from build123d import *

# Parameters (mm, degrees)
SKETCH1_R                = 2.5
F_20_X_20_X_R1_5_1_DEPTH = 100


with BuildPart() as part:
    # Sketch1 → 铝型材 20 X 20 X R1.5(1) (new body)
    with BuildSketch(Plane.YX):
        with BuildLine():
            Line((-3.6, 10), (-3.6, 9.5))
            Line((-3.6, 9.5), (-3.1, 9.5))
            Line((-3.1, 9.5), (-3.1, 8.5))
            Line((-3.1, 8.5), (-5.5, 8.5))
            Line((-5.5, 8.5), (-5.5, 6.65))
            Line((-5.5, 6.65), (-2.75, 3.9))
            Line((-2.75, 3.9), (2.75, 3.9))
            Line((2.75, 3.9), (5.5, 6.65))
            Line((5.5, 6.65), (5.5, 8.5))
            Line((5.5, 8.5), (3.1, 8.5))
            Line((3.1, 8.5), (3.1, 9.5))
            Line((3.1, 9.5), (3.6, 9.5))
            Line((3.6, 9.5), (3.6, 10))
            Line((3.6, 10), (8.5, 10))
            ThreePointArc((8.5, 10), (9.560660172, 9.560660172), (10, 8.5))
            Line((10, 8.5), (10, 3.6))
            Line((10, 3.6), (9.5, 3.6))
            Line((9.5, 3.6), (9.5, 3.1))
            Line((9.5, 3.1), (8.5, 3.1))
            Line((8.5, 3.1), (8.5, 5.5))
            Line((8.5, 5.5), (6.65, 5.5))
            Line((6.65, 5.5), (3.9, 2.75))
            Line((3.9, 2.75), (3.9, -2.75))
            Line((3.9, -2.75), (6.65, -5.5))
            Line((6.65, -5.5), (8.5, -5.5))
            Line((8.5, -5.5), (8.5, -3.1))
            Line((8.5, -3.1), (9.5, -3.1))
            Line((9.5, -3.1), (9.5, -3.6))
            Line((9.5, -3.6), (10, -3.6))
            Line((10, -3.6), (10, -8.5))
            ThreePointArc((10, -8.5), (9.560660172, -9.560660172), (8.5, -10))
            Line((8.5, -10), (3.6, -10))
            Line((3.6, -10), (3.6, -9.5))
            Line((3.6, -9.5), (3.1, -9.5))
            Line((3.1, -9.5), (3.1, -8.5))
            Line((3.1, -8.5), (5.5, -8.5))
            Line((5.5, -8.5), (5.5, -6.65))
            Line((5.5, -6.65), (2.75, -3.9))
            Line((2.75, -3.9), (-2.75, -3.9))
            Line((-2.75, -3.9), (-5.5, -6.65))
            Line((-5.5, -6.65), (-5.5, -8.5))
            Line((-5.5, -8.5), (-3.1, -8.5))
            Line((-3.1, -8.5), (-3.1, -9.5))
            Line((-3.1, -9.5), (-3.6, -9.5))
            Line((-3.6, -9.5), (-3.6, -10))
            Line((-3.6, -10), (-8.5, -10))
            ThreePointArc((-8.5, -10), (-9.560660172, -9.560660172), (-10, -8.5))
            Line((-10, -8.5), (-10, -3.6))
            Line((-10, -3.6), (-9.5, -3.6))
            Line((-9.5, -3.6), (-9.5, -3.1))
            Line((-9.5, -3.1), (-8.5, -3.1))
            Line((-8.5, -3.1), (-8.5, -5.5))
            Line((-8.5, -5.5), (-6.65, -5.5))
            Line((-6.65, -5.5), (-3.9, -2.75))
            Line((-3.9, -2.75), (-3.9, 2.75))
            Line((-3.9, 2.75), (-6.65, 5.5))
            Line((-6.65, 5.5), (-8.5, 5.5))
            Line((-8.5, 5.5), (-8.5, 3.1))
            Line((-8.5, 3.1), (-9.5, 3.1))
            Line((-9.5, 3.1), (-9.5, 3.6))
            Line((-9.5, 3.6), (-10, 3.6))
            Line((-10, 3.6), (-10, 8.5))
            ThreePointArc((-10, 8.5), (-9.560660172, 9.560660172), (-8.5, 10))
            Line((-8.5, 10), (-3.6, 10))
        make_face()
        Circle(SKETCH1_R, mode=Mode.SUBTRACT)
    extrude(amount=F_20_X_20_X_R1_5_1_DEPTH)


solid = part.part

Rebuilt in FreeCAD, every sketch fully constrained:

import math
import FreeCAD as App
import Part
import Sketcher
Q = App.Units.Quantity

doc = App.newDocument("Part")
body = doc.addObject("PartDesign::Body", "Body")

sketch1 = body.newObject("Sketcher::SketchObject", "Sketch")
sketch1.AttachmentSupport = (doc.getObject("XY_Plane"), [""])
sketch1.MapMode = "FlatFace"
sketch1.addGeometry(Part.LineSegment(App.Vector(9.5, -3.6, 0), App.Vector(10, -3.6, 0)), False)
sketch1.addGeometry(Part.LineSegment(App.Vector(10, -3.6, 0), App.Vector(10, -8.5, 0)), False)
sketch1.addGeometry(Part.ArcOfCircle(Part.Circle(App.Vector(8.5, -8.5, 0), App.Vector(0, 0, 1), 1.5), math.radians(-90), math.radians(0)), False)
sketch1.addGeometry(Part.LineSegment(App.Vector(8.5, -10, 0), App.Vector(3.6, -10, 0)), False)
sketch1.addGeometry(Part.LineSegment(App.Vector(3.6, -10, 0), App.Vector(3.6, -9.5, 0)), False)
sketch1.addGeometry(Part.LineSegment(App.Vector(3.6, -9.5, 0), App.Vector(3.1, -9.5, 0)), False)
sketch1.addGeometry(Part.LineSegment(App.Vector(3.1, -9.5, 0), App.Vector(3.1, -8.5, 0)), False)
sketch1.addGeometry(Part.LineSegment(App.Vector(3.1, -8.5, 0), App.Vector(5.5, -8.5, 0)), False)
sketch1.addGeometry(Part.LineSegment(App.Vector(5.5, -8.5, 0), App.Vector(5.5, -6.7, 0)), False)
sketch1.addGeometry(Part.LineSegment(App.Vector(5.5, -6.7, 0), App.Vector(2.8, -3.9, 0)), False)
sketch1.addGeometry(Part.LineSegment(App.Vector(2.8, -3.9, 0), App.Vector(-2.8, -3.9, 0)), False)
sketch1.addGeometry(Part.LineSegment(App.Vector(-2.8, -3.9, 0), App.Vector(-5.5, -6.7, 0)), False)
sketch1.addGeometry(Part.LineSegment(App.Vector(-5.5, -6.7, 0), App.Vector(-5.5, -8.5, 0)), False)
sketch1.addGeometry(Part.LineSegment(App.Vector(-5.5, -8.5, 0), App.Vector(-3.1, -8.5, 0)), False)
sketch1.addGeometry(Part.LineSegment(App.Vector(-3.1, -8.5, 0), App.Vector(-3.1, -9.5, 0)), False)
sketch1.addGeometry(Part.LineSegment(App.Vector(-3.1, -9.5, 0), App.Vector(-3.6, -9.5, 0)), False)
sketch1.addGeometry(Part.LineSegment(App.Vector(-3.6, -9.5, 0), App.Vector(-3.6, -10, 0)), False)
sketch1.addGeometry(Part.LineSegment(App.Vector(-3.6, -10, 0), App.Vector(-8.5, -10, 0)), False)
sketch1.addGeometry(Part.ArcOfCircle(Part.Circle(App.Vector(-8.5, -8.5, 0), App.Vector(0, 0, 1), 1.5), math.radians(180), math.radians(270)), False)
sketch1.addGeometry(Part.LineSegment(App.Vector(-10, -8.5, 0), App.Vector(-10, -3.6, 0)), False)
sketch1.addGeometry(Part.LineSegment(App.Vector(-10, -3.6, 0), App.Vector(-9.5, -3.6, 0)), False)
sketch1.addGeometry(Part.LineSegment(App.Vector(-9.5, -3.6, 0), App.Vector(-9.5, -3.1, 0)), False)
sketch1.addGeometry(Part.LineSegment(App.Vector(-9.5, -3.1, 0), App.Vector(-8.5, -3.1, 0)), False)
sketch1.addGeometry(Part.LineSegment(App.Vector(-8.5, -3.1, 0), App.Vector(-8.5, -5.5, 0)), False)
sketch1.addGeometry(Part.LineSegment(App.Vector(-8.5, -5.5, 0), App.Vector(-6.7, -5.5, 0)), False)
sketch1.addGeometry(Part.LineSegment(App.Vector(-6.7, -5.5, 0), App.Vector(-3.9, -2.8, 0)), False)
sketch1.addGeometry(Part.LineSegment(App.Vector(-3.9, -2.8, 0), App.Vector(-3.9, 2.8, 0)), False)
sketch1.addGeometry(Part.LineSegment(App.Vector(-3.9, 2.8, 0), App.Vector(-6.7, 5.5, 0)), False)
sketch1.addGeometry(Part.LineSegment(App.Vector(-6.7, 5.5, 0), App.Vector(-8.5, 5.5, 0)), False)
sketch1.addGeometry(Part.LineSegment(App.Vector(-8.5, 5.5, 0), App.Vector(-8.5, 3.1, 0)), False)
sketch1.addGeometry(Part.LineSegment(App.Vector(-8.5, 3.1, 0), App.Vector(-9.5, 3.1, 0)), False)
sketch1.addGeometry(Part.LineSegment(App.Vector(-9.5, 3.1, 0), App.Vector(-9.5, 3.6, 0)), False)
sketch1.addGeometry(Part.LineSegment(App.Vector(-9.5, 3.6, 0), App.Vector(-10, 3.6, 0)), False)
sketch1.addGeometry(Part.LineSegment(App.Vector(-10, 3.6, 0), App.Vector(-10, 8.5, 0)), False)
sketch1.addGeometry(Part.ArcOfCircle(Part.Circle(App.Vector(-8.5, 8.5, 0), App.Vector(0, 0, 1), 1.5), math.radians(90), math.radians(180)), False)
sketch1.addGeometry(Part.LineSegment(App.Vector(-8.5, 10, 0), App.Vector(-3.6, 10, 0)), False)
sketch1.addGeometry(Part.LineSegment(App.Vector(-3.6, 10, 0), App.Vector(-3.6, 9.5, 0)), False)
sketch1.addGeometry(Part.LineSegment(App.Vector(-3.6, 9.5, 0), App.Vector(-3.1, 9.5, 0)), False)
sketch1.addGeometry(Part.LineSegment(App.Vector(-3.1, 9.5, 0), App.Vector(-3.1, 8.5, 0)), False)
sketch1.addGeometry(Part.LineSegment(App.Vector(-3.1, 8.5, 0), App.Vector(-5.5, 8.5, 0)), False)
sketch1.addGeometry(Part.LineSegment(App.Vector(-5.5, 8.5, 0), App.Vector(-5.5, 6.7, 0)), False)
sketch1.addGeometry(Part.LineSegment(App.Vector(-5.5, 6.7, 0), App.Vector(-2.8, 3.9, 0)), False)
sketch1.addGeometry(Part.LineSegment(App.Vector(-2.8, 3.9, 0), App.Vector(2.8, 3.9, 0)), False)
sketch1.addGeometry(Part.LineSegment(App.Vector(2.8, 3.9, 0), App.Vector(5.5, 6.7, 0)), False)
sketch1.addGeometry(Part.LineSegment(App.Vector(5.5, 6.7, 0), App.Vector(5.5, 8.5, 0)), False)
sketch1.addGeometry(Part.LineSegment(App.Vector(5.5, 8.5, 0), App.Vector(3.1, 8.5, 0)), False)
sketch1.addGeometry(Part.LineSegment(App.Vector(3.1, 8.5, 0), App.Vector(3.1, 9.5, 0)), False)
sketch1.addGeometry(Part.LineSegment(App.Vector(3.1, 9.5, 0), App.Vector(3.6, 9.5, 0)), False)
sketch1.addGeometry(Part.LineSegment(App.Vector(3.6, 9.5, 0), App.Vector(3.6, 10, 0)), False)
sketch1.addGeometry(Part.LineSegment(App.Vector(3.6, 10, 0), App.Vector(8.5, 10, 0)), False)
sketch1.addGeometry(Part.ArcOfCircle(Part.Circle(App.Vector(8.5, 8.5, 0), App.Vector(0, 0, 1), 1.5), math.radians(0), math.radians(90)), False)
sketch1.addGeometry(Part.LineSegment(App.Vector(10, 8.5, 0), App.Vector(10, 3.6, 0)), False)
sketch1.addGeometry(Part.LineSegment(App.Vector(10, 3.6, 0), App.Vector(9.5, 3.6, 0)), False)
sketch1.addGeometry(Part.LineSegment(App.Vector(9.5, 3.6, 0), App.Vector(9.5, 3.1, 0)), False)
sketch1.addGeometry(Part.LineSegment(App.Vector(9.5, 3.1, 0), App.Vector(8.5, 3.1, 0)), False)
sketch1.addGeometry(Part.LineSegment(App.Vector(8.5, 3.1, 0), App.Vector(8.5, 5.5, 0)), False)
sketch1.addGeometry(Part.LineSegment(App.Vector(8.5, 5.5, 0), App.Vector(6.7, 5.5, 0)), False)
sketch1.addGeometry(Part.LineSegment(App.Vector(6.7, 5.5, 0), App.Vector(3.9, 2.8, 0)), False)
sketch1.addGeometry(Part.LineSegment(App.Vector(3.9, 2.8, 0), App.Vector(3.9, -2.8, 0)), False)
sketch1.addGeometry(Part.LineSegment(App.Vector(3.9, -2.8, 0), App.Vector(6.7, -5.5, 0)), False)
sketch1.addGeometry(Part.LineSegment(App.Vector(6.7, -5.5, 0), App.Vector(8.5, -5.5, 0)), False)
sketch1.addGeometry(Part.LineSegment(App.Vector(8.5, -5.5, 0), App.Vector(8.5, -3.1, 0)), False)
sketch1.addGeometry(Part.LineSegment(App.Vector(8.5, -3.1, 0), App.Vector(9.5, -3.1, 0)), False)
sketch1.addGeometry(Part.LineSegment(App.Vector(9.5, -3.1, 0), App.Vector(9.5, -3.6, 0)), False)
sketch1.addGeometry(Part.Circle(App.Vector(0, 0, 0), App.Vector(0, 0, 1), 2.5), False)
sketch1.addConstraint(Sketcher.Constraint("Coincident", 0, 2, 1, 1))
sketch1.addConstraint(Sketcher.Constraint("Tangent", 1, 2, 2, 2))
sketch1.addConstraint(Sketcher.Constraint("Tangent", 2, 1, 3, 1))
sketch1.addConstraint(Sketcher.Constraint("Coincident", 3, 2, 4, 1))
sketch1.addConstraint(Sketcher.Constraint("Coincident", 4, 2, 5, 1))
sketch1.addConstraint(Sketcher.Constraint("Coincident", 5, 2, 6, 1))
sketch1.addConstraint(Sketcher.Constraint("Coincident", 6, 2, 7, 1))
sketch1.addConstraint(Sketcher.Constraint("Coincident", 7, 2, 8, 1))
sketch1.addConstraint(Sketcher.Constraint("Coincident", 8, 2, 9, 1))
sketch1.addConstraint(Sketcher.Constraint("Coincident", 9, 2, 10, 1))
sketch1.addConstraint(Sketcher.Constraint("Coincident", 10, 2, 11, 1))
sketch1.addConstraint(Sketcher.Constraint("Coincident", 11, 2, 12, 1))
sketch1.addConstraint(Sketcher.Constraint("Coincident", 12, 2, 13, 1))
sketch1.addConstraint(Sketcher.Constraint("Coincident", 13, 2, 14, 1))
sketch1.addConstraint(Sketcher.Constraint("Coincident", 14, 2, 15, 1))
sketch1.addConstraint(Sketcher.Constraint("Coincident", 15, 2, 16, 1))
sketch1.addConstraint(Sketcher.Constraint("Coincident", 16, 2, 17, 1))
sketch1.addConstraint(Sketcher.Constraint("Tangent", 17, 2, 18, 2))
sketch1.addConstraint(Sketcher.Constraint("Tangent", 18, 1, 19, 1))
sketch1.addConstraint(Sketcher.Constraint("Coincident", 19, 2, 20, 1))
sketch1.addConstraint(Sketcher.Constraint("Coincident", 20, 2, 21, 1))
sketch1.addConstraint(Sketcher.Constraint("Coincident", 21, 2, 22, 1))
sketch1.addConstraint(Sketcher.Constraint("Coincident", 22, 2, 23, 1))
sketch1.addConstraint(Sketcher.Constraint("Coincident", 23, 2, 24, 1))
sketch1.addConstraint(Sketcher.Constraint("Coincident", 24, 2, 25, 1))
sketch1.addConstraint(Sketcher.Constraint("Coincident", 25, 2, 26, 1))
sketch1.addConstraint(Sketcher.Constraint("Coincident", 26, 2, 27, 1))
sketch1.addConstraint(Sketcher.Constraint("Coincident", 27, 2, 28, 1))
sketch1.addConstraint(Sketcher.Constraint("Coincident", 28, 2, 29, 1))
sketch1.addConstraint(Sketcher.Constraint("Coincident", 29, 2, 30, 1))
sketch1.addConstraint(Sketcher.Constraint("Coincident", 30, 2, 31, 1))
sketch1.addConstraint(Sketcher.Constraint("Coincident", 31, 2, 32, 1))
sketch1.addConstraint(Sketcher.Constraint("Coincident", 32, 2, 33, 1))
sketch1.addConstraint(Sketcher.Constraint("Tangent", 33, 2, 34, 2))
sketch1.addConstraint(Sketcher.Constraint("Tangent", 34, 1, 35, 1))
sketch1.addConstraint(Sketcher.Constraint("Coincident", 35, 2, 36, 1))
sketch1.addConstraint(Sketcher.Constraint("Coincident", 36, 2, 37, 1))
sketch1.addConstraint(Sketcher.Constraint("Coincident", 37, 2, 38, 1))
sketch1.addConstraint(Sketcher.Constraint("Coincident", 38, 2, 39, 1))
sketch1.addConstraint(Sketcher.Constraint("Coincident", 39, 2, 40, 1))
sketch1.addConstraint(Sketcher.Constraint("Coincident", 40, 2, 41, 1))
sketch1.addConstraint(Sketcher.Constraint("Coincident", 41, 2, 42, 1))
sketch1.addConstraint(Sketcher.Constraint("Coincident", 42, 2, 43, 1))
sketch1.addConstraint(Sketcher.Constraint("Coincident", 43, 2, 44, 1))
sketch1.addConstraint(Sketcher.Constraint("Coincident", 44, 2, 45, 1))
sketch1.addConstraint(Sketcher.Constraint("Coincident", 45, 2, 46, 1))
sketch1.addConstraint(Sketcher.Constraint("Coincident", 46, 2, 47, 1))
sketch1.addConstraint(Sketcher.Constraint("Coincident", 47, 2, 48, 1))
sketch1.addConstraint(Sketcher.Constraint("Coincident", 48, 2, 49, 1))
sketch1.addConstraint(Sketcher.Constraint("Tangent", 49, 2, 50, 2))
sketch1.addConstraint(Sketcher.Constraint("Tangent", 50, 1, 51, 1))
sketch1.addConstraint(Sketcher.Constraint("Coincident", 51, 2, 52, 1))
sketch1.addConstraint(Sketcher.Constraint("Coincident", 52, 2, 53, 1))
sketch1.addConstraint(Sketcher.Constraint("Coincident", 53, 2, 54, 1))
sketch1.addConstraint(Sketcher.Constraint("Coincident", 54, 2, 55, 1))
sketch1.addConstraint(Sketcher.Constraint("Coincident", 55, 2, 56, 1))
sketch1.addConstraint(Sketcher.Constraint("Coincident", 56, 2, 57, 1))
sketch1.addConstraint(Sketcher.Constraint("Coincident", 57, 2, 58, 1))
sketch1.addConstraint(Sketcher.Constraint("Coincident", 58, 2, 59, 1))
sketch1.addConstraint(Sketcher.Constraint("Coincident", 59, 2, 60, 1))
sketch1.addConstraint(Sketcher.Constraint("Coincident", 60, 2, 61, 1))
sketch1.addConstraint(Sketcher.Constraint("Coincident", 61, 2, 62, 1))
sketch1.addConstraint(Sketcher.Constraint("Coincident", 62, 2, 63, 1))
sketch1.addConstraint(Sketcher.Constraint("Coincident", 63, 2, 0, 1))
sketch1.addConstraint(Sketcher.Constraint("Horizontal", 0))
sketch1.addConstraint(Sketcher.Constraint("Vertical", 1))
sketch1.addConstraint(Sketcher.Constraint("Horizontal", 3))
sketch1.addConstraint(Sketcher.Constraint("Vertical", 4))
sketch1.addConstraint(Sketcher.Constraint("Horizontal", 5))
sketch1.addConstraint(Sketcher.Constraint("Vertical", 6))
sketch1.addConstraint(Sketcher.Constraint("Horizontal", 7))
sketch1.addConstraint(Sketcher.Constraint("Vertical", 8))
sketch1.addConstraint(Sketcher.Constraint("Horizontal", 10))
sketch1.addConstraint(Sketcher.Constraint("Vertical", 12))
sketch1.addConstraint(Sketcher.Constraint("Horizontal", 13))
sketch1.addConstraint(Sketcher.Constraint("Vertical", 14))
sketch1.addConstraint(Sketcher.Constraint("Horizontal", 15))
sketch1.addConstraint(Sketcher.Constraint("Vertical", 16))
sketch1.addConstraint(Sketcher.Constraint("Horizontal", 17))
sketch1.addConstraint(Sketcher.Constraint("Vertical", 19))
sketch1.addConstraint(Sketcher.Constraint("Horizontal", 20))
sketch1.addConstraint(Sketcher.Constraint("Vertical", 21))
sketch1.addConstraint(Sketcher.Constraint("Horizontal", 22))
sketch1.addConstraint(Sketcher.Constraint("Vertical", 23))
sketch1.addConstraint(Sketcher.Constraint("Horizontal", 24))
sketch1.addConstraint(Sketcher.Constraint("Vertical", 26))
sketch1.addConstraint(Sketcher.Constraint("Horizontal", 28))
sketch1.addConstraint(Sketcher.Constraint("Vertical", 29))
sketch1.addConstraint(Sketcher.Constraint("Horizontal", 30))
sketch1.addConstraint(Sketcher.Constraint("Vertical", 31))
sketch1.addConstraint(Sketcher.Constraint("Horizontal", 32))
sketch1.addConstraint(Sketcher.Constraint("Vertical", 33))
sketch1.addConstraint(Sketcher.Constraint("Horizontal", 35))
sketch1.addConstraint(Sketcher.Constraint("Vertical", 36))
sketch1.addConstraint(Sketcher.Constraint("Horizontal", 37))
sketch1.addConstraint(Sketcher.Constraint("Vertical", 38))
sketch1.addConstraint(Sketcher.Constraint("Horizontal", 39))
sketch1.addConstraint(Sketcher.Constraint("Vertical", 40))
sketch1.addConstraint(Sketcher.Constraint("Horizontal", 42))
sketch1.addConstraint(Sketcher.Constraint("Vertical", 44))
sketch1.addConstraint(Sketcher.Constraint("Horizontal", 45))
sketch1.addConstraint(Sketcher.Constraint("Vertical", 46))
sketch1.addConstraint(Sketcher.Constraint("Horizontal", 47))
sketch1.addConstraint(Sketcher.Constraint("Vertical", 48))
sketch1.addConstraint(Sketcher.Constraint("Horizontal", 49))
sketch1.addConstraint(Sketcher.Constraint("Vertical", 51))
sketch1.addConstraint(Sketcher.Constraint("Horizontal", 52))
sketch1.addConstraint(Sketcher.Constraint("Vertical", 53))
sketch1.addConstraint(Sketcher.Constraint("Horizontal", 54))
sketch1.addConstraint(Sketcher.Constraint("Vertical", 55))
sketch1.addConstraint(Sketcher.Constraint("Horizontal", 56))
sketch1.addConstraint(Sketcher.Constraint("Vertical", 58))
sketch1.addConstraint(Sketcher.Constraint("Horizontal", 60))
sketch1.addConstraint(Sketcher.Constraint("Vertical", 61))
sketch1.addConstraint(Sketcher.Constraint("Horizontal", 62))
sketch1.addConstraint(Sketcher.Constraint("Vertical", 63))
sketch1.addConstraint(Sketcher.Constraint("Coincident", 64, 3, -1, 1))
sketch1.addConstraint(Sketcher.Constraint("Equal", 2, 18))
sketch1.addConstraint(Sketcher.Constraint("Equal", 18, 34))
sketch1.addConstraint(Sketcher.Constraint("Equal", 34, 50))
sketch1.addConstraint(Sketcher.Constraint("Symmetric", 2, 3, 34, 3, -1, 1))
sketch1.addConstraint(Sketcher.Constraint("Symmetric", 18, 3, 50, 3, -1, 1))
sketch1.addConstraint(Sketcher.Constraint("Symmetric", 4, 2, 36, 2, -1, 1))
sketch1.addConstraint(Sketcher.Constraint("Symmetric", 6, 2, 38, 2, -1, 1))
sketch1.addConstraint(Sketcher.Constraint("Symmetric", 8, 2, 40, 2, -1, 1))
sketch1.addConstraint(Sketcher.Constraint("Symmetric", 9, 2, 41, 2, -1, 1))
sketch1.addConstraint(Sketcher.Constraint("Symmetric", 11, 2, 43, 2, -1, 1))
sketch1.addConstraint(Sketcher.Constraint("Symmetric", 13, 2, 45, 2, -1, 1))
sketch1.addConstraint(Sketcher.Constraint("Symmetric", 15, 2, 47, 2, -1, 1))
sketch1.addConstraint(Sketcher.Constraint("Symmetric", 20, 2, 52, 2, -1, 1))
sketch1.addConstraint(Sketcher.Constraint("Symmetric", 22, 2, 54, 2, -1, 1))
sketch1.addConstraint(Sketcher.Constraint("Symmetric", 24, 2, 56, 2, -1, 1))
sketch1.addConstraint(Sketcher.Constraint("Symmetric", 25, 2, 57, 2, -1, 1))
sketch1.addConstraint(Sketcher.Constraint("Symmetric", 27, 2, 59, 2, -1, 1))
sketch1.addConstraint(Sketcher.Constraint("Symmetric", 29, 2, 61, 2, -1, 1))
sketch1.addConstraint(Sketcher.Constraint("Symmetric", 31, 2, 63, 2, -1, 1))
sketch1.addConstraint(Sketcher.Constraint("Symmetric", 2, 3, 18, 3, -2))
sketch1.addConstraint(Sketcher.Constraint("Symmetric", 8, 2, 11, 2, -2))
sketch1.addConstraint(Sketcher.Constraint("Symmetric", 6, 2, 13, 2, -2))
sketch1.addConstraint(Sketcher.Constraint("Symmetric", 4, 2, 15, 2, -2))
sketch1.addConstraint(Sketcher.Constraint("Symmetric", 31, 2, 52, 2, -2))
sketch1.addConstraint(Sketcher.Constraint("Symmetric", 29, 2, 54, 2, -2))
sketch1.addConstraint(Sketcher.Constraint("Symmetric", 27, 2, 56, 2, -2))
sketch1.addConstraint(Sketcher.Constraint("Perpendicular", 9, 11))
sketch1.addConstraint(Sketcher.Constraint("Parallel", 11, 25))
sketch1.addConstraint(Sketcher.Constraint("Perpendicular", 25, 27))
sketch1.addConstraint(Sketcher.Constraint("Perpendicular", 41, 43))
sketch1.addConstraint(Sketcher.Constraint("Perpendicular", 57, 59))
sketch1.addConstraint(Sketcher.Constraint("Horizontal", 1, 2, 6, 2))
sketch1.addConstraint(Sketcher.Constraint("Horizontal", 26, 2, 57, 2))
sketch1.addConstraint(Sketcher.Constraint("Vertical", 17, 2, 22, 2))
sketch1.addConstraint(Sketcher.Constraint("Equal", 0, 5))
sketch1.addConstraint(Sketcher.Constraint("Equal", 49, 1))
sketch1.addConstraint(Sketcher.Constraint("Equal", 52, 4))
sketch1.addConstraint(Sketcher.Constraint("Equal", 60, 8))
sketch1.addConstraint(Sketcher.Constraint("Equal", 16, 21))
sketch1.addConstraint(Sketcher.Constraint("Equal", 45, 23))
sketch1.addConstraint(Sketcher.Constraint("Equal", 42, 26))
sketch1.addConstraint(Sketcher.Constraint("Equal", 11, 25))
sketch1.addConstraint(Sketcher.Constraint("Diameter", 64, Q("5 mm")))
sketch1.addConstraint(Sketcher.Constraint("Radius", 2, Q("1.5 mm")))
sketch1.addConstraint(Sketcher.Constraint("DistanceX", 22, 1, 22, 2, Q("1 mm")))
sketch1.addConstraint(Sketcher.Constraint("DistanceX", 3, 2, 3, 1, Q("4.9 mm")))
sketch1.addConstraint(Sketcher.Constraint("DistanceX", 7, 1, 7, 2, Q("2.4 mm")))
sketch1.addConstraint(Sketcher.Constraint("DistanceX", 10, 2, 10, 1, Q("5.5 mm")))
sketch1.addConstraint(Sketcher.Constraint("DistanceX", -1, 1, 0, 2, Q("10 mm")))
sketch1.addConstraint(Sketcher.Constraint("DistanceX", 24, 1, 24, 2, Q("1.85 mm")))
pad1 = body.newObject("PartDesign::Pad", "Pad")
pad1.Profile = sketch1
pad1.Length = 100
pad1.Reversed = True

doc.recompute()
